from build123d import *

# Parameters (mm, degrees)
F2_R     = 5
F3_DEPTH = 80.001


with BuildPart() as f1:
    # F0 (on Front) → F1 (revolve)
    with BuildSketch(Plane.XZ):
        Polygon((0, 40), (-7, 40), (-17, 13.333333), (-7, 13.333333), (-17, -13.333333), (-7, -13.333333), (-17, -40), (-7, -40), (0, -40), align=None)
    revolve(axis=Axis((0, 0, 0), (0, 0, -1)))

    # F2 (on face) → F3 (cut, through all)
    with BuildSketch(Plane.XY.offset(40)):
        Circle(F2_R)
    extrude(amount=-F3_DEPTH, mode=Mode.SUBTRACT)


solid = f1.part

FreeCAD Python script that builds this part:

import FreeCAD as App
import Part
import Sketcher
from FreeCAD import Vector


def add_polygon(sketch, points):
    """Adds a closed chain of lines whose ends are joined by coincident constraints."""
    first, n = sketch.GeometryCount, len(points)
    for a, b in zip(points, points[1:] + points[:1]):
        sketch.addGeometry(Part.LineSegment(App.Vector(*a, 0), App.Vector(*b, 0)), False)
    for i in range(n):
        sketch.addConstraint(Sketcher.Constraint("Coincident", first + i, 2, first + (i + 1) % n, 1))

doc = App.newDocument("Part")
body = doc.addObject("PartDesign::Body", "Body")

sketch1 = body.newObject("Sketcher::SketchObject", "Sketch")
sketch1.AttachmentSupport = (doc.getObject("XZ_Plane"), [""])
sketch1.MapMode = "FlatFace"
add_polygon(sketch1, [(0, 40), (-7, 40), (-17, 13.333333), (-7, 13.333333), (-17, -13.333333), (-7, -13.333333), (-17, -40), (0, -40)])
sketch1.addConstraint([
    Sketcher.Constraint("Horizontal", 0),
    Sketcher.Constraint("Horizontal", 2),
    Sketcher.Constraint("Horizontal", 4),
    Sketcher.Constraint("Horizontal", 6),
    Sketcher.Constraint("Vertical", 7),
    Sketcher.Constraint("Symmetric", 6, 2, 7, 2, -1, 1),
    Sketcher.Constraint("Symmetric", 1, 2, 3, 2, -1),
    Sketcher.Constraint("Parallel", 1, 3),
    Sketcher.Constraint("Parallel", 3, 5),
    Sketcher.Constraint("Vertical", 0, 2, 2, 2),
    Sketcher.Constraint("Vertical", 2, 2, 4, 2),
    Sketcher.Constraint("DistanceX", 0, 2, 0, 1, 7.0),
    Sketcher.Constraint("DistanceX", 2, 1, 2, 2, 10.0),
    Sketcher.Constraint("DistanceY", 7, 1, 7, 2, 80.0),
])
revolution = body.newObject("PartDesign::Revolution", "Revolution")
revolution.Profile = sketch1
revolution.ReferenceAxis = (sketch1, ["V_Axis"])
revolution.Angle = 360

sketch2 = body.newObject("Sketcher::SketchObject", "Sketch001")
sketch2.AttachmentSupport = (doc.getObject("XY_Plane"), [""])
sketch2.MapMode = "FlatFace"
sketch2.AttachmentOffset = App.Placement(Vector(0, 0, 40), App.Rotation())
sketch2.addGeometry(Part.Circle(Vector(0, 0, 0), Vector(0, 0, 1), 5), False)
sketch2.addConstraint([
    Sketcher.Constraint("Coincident", 0, 3, -1, 1),
    Sketcher.Constraint("Diameter", 0, 10.0),
])
pocket1 = body.newObject("PartDesign::Pocket", "Pocket")
pocket1.Profile = sketch2
pocket1.Type = "ThroughAll"

doc.recompute()
